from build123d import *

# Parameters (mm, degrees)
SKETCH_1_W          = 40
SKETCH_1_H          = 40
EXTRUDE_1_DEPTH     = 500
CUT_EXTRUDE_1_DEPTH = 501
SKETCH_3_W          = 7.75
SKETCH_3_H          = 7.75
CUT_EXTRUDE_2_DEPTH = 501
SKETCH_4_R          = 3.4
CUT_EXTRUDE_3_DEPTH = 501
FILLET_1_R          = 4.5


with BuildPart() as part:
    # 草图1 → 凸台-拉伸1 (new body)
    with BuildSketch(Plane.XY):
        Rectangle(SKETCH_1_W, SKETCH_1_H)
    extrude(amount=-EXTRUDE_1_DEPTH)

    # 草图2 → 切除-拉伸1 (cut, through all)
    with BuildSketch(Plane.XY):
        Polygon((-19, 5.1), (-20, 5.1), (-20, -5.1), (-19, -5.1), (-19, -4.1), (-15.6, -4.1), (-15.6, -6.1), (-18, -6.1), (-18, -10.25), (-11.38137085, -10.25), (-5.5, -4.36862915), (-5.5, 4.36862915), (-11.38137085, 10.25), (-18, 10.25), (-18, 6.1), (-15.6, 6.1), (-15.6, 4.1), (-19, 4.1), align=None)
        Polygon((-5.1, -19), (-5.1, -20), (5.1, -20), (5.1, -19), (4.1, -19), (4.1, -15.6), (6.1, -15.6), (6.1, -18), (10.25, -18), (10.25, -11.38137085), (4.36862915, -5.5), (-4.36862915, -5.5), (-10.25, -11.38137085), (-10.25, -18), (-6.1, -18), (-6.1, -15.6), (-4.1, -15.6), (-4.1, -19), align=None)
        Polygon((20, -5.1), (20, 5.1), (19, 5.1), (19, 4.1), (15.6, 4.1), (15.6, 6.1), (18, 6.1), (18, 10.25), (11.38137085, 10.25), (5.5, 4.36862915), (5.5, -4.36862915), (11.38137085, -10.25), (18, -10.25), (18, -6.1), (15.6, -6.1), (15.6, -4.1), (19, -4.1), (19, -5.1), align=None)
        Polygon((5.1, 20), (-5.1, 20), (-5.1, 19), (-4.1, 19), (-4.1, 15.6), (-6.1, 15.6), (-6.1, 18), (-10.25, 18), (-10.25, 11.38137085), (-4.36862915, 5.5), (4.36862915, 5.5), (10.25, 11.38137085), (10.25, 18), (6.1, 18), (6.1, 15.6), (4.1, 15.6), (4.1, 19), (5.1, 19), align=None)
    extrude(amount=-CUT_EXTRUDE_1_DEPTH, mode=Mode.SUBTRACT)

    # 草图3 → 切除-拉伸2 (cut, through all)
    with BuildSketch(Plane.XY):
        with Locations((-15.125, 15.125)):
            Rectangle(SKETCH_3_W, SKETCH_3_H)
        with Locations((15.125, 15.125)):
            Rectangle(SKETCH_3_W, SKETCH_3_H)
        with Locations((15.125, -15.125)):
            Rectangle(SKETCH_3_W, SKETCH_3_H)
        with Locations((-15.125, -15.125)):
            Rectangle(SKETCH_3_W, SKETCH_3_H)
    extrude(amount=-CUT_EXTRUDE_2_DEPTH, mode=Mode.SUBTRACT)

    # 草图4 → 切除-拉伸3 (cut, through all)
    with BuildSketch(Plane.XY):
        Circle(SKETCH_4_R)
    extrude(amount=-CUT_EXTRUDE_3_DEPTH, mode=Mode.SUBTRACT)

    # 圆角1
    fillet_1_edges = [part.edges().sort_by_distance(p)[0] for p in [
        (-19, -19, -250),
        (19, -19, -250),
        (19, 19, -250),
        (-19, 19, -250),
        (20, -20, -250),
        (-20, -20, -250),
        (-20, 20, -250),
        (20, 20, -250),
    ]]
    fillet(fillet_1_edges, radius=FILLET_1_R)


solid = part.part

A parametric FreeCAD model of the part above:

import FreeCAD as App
import Part
import Sketcher
Q = App.Units.Quantity


def edges_at(feature, points):
    """Names of the edges that pass closest to the given points."""
    edges = feature.Shape.Edges
    near = lambda p: min(range(len(edges)), key=lambda i: edges[i].distToShape(Part.Vertex(*p))[0])
    return sorted({f"Edge{near(p) + 1}" for p in points})


def add_polygon(sketch, points):
    """Adds a closed chain of lines whose ends are joined by coincident constraints."""
    first, n = sketch.GeometryCount, len(points)
    for a, b in zip(points, points[1:] + points[:1]):
        sketch.addGeometry(Part.LineSegment(App.Vector(*a, 0), App.Vector(*b, 0)), False)
    for i in range(n):
        sketch.addConstraint(Sketcher.Constraint("Coincident", first + i, 2, first + (i + 1) % n, 1))

doc = App.newDocument("Part")
body = doc.addObject("PartDesign::Body", "Body")

sketch1 = doc.addObject("Sketcher::SketchObject", "Sketch")
body.addObject(sketch1)
sketch1.AttachmentSupport = (doc.XY_Plane, [""])
sketch1.MapMode = "FlatFace"
add_polygon(sketch1, [(-20, 20), (-20, -20), (20, -20), (20, 20)])
sketch1.addConstraint([
    Sketcher.Constraint("Vertical", 0),
    Sketcher.Constraint("Horizontal", 1),
    Sketcher.Constraint("Vertical", 2),
    Sketcher.Constraint("Horizontal", 3),
    Sketcher.Constraint("Symmetric", 0, 2, 2, 2, -1, 1),
    Sketcher.Constraint("Equal", 3, 0),
    Sketcher.Constraint("DistanceX", 1, 1, 1, 2, Q("40 mm")),
])
pad1 = doc.addObject("PartDesign::Pad", "Pad")
body.addObject(pad1)
pad1.Profile = sketch1
pad1.Length = 500
pad1.Reversed = True

sketch2 = doc.addObject("Sketcher::SketchObject", "Sketch001")
body.addObject(sketch2)
sketch2.AttachmentSupport = (doc.XY_Plane, [""])
sketch2.MapMode = "FlatFace"
add_polygon(sketch2, [(-19, 5.1), (-20, 5.1), (-20, -5.1), (-19, -5.1), (-19, -4.1), (-15.6, -4.1), (-15.6, -6.1), (-18, -6.1), (-18, -10.2), (-11.4, -10.2), (-5.5, -4.4), (-5.5, 4.4), (-11.4, 10.2), (-18, 10.2), (-18, 6.1), (-15.6, 6.1), (-15.6, 4.1), (-19, 4.1)])
add_polygon(sketch2, [(-5.1, -19), (-5.1, -20), (5.1, -20), (5.1, -19), (4.1, -19), (4.1, -15.6), (6.1, -15.6), (6.1, -18), (10.2, -18), (10.2, -11.4), (4.4, -5.5), (-4.4, -5.5), (-10.2, -11.4), (-10.2, -18), (-6.1, -18), (-6.1, -15.6), (-4.1, -15.6), (-4.1, -19)])
add_polygon(sketch2, [(20, -5.1), (20, 5.1), (19, 5.1), (19, 4.1), (15.6, 4.1), (15.6, 6.1), (18, 6.1), (18, 10.2), (11.4, 10.2), (5.5, 4.4), (5.5, -4.4), (11.4, -10.2), (18, -10.2), (18, -6.1), (15.6, -6.1), (15.6, -4.1), (19, -4.1), (19, -5.1)])
add_polygon(sketch2, [(5.1, 20), (-5.1, 20), (-5.1, 19), (-4.1, 19), (-4.1, 15.6), (-6.1, 15.6), (-6.1, 18), (-10.2, 18), (-10.2, 11.4), (-4.4, 5.5), (4.4, 5.5), (10.2, 11.4), (10.2, 18), (6.1, 18), (6.1, 15.6), (4.1, 15.6), (4.1, 19), (5.1, 19)])
sketch2.addConstraint([
    Sketcher.Constraint("Horizontal", 0),
    Sketcher.Constraint("Vertical", 1),
    Sketcher.Constraint("Horizontal", 2),
    Sketcher.Constraint("Vertical", 3),
    Sketcher.Constraint("Horizontal", 4),
    Sketcher.Constraint("Vertical", 5),
    Sketcher.Constraint("Horizontal", 6),
    Sketcher.Constraint("Vertical", 7),
    Sketcher.Constraint("Horizontal", 8),
    Sketcher.Constraint("Vertical", 10),
    Sketcher.Constraint("Horizontal", 12),
    Sketcher.Constraint("Vertical", 13),
    Sketcher.Constraint("Horizontal", 14),
    Sketcher.Constraint("Vertical", 15),
    Sketcher.Constraint("Horizontal", 16),
    Sketcher.Constraint("Vertical", 17),
    Sketcher.Constraint("Vertical", 18),
    Sketcher.Constraint("Horizontal", 19),
    Sketcher.Constraint("Vertical", 20),
    Sketcher.Constraint("Horizontal", 21),
    Sketcher.Constraint("Vertical", 22),
    Sketcher.Constraint("Horizontal", 23),
    Sketcher.Constraint("Vertical", 24),
    Sketcher.Constraint("Horizontal", 25),
    Sketcher.Constraint("Vertical", 26),
    Sketcher.Constraint("Horizontal", 28),
    Sketcher.Constraint("Vertical", 30),
    Sketcher.Constraint("Horizontal", 31),
    Sketcher.Constraint("Vertical", 32),
    Sketcher.Constraint("Horizontal", 33),
    Sketcher.Constraint("Vertical", 34),
    Sketcher.Constraint("Horizontal", 35),
    Sketcher.Constraint("Vertical", 36),
    Sketcher.Constraint("Horizontal", 37),
    Sketcher.Constraint("Vertical", 38),
    Sketcher.Constraint("Horizontal", 39),
    Sketcher.Constraint("Vertical", 40),
    Sketcher.Constraint("Horizontal", 41),
    Sketcher.Constraint("Vertical", 42),
    Sketcher.Constraint("Horizontal", 43),
    Sketcher.Constraint("Vertical", 45),
    Sketcher.Constraint("Horizontal", 47),
    Sketcher.Constraint("Vertical", 48),
    Sketcher.Constraint("Horizontal", 49),
    Sketcher.Constraint("Vertical", 50),
    Sketcher.Constraint("Horizontal", 51),
    Sketcher.Constraint("Vertical", 52),
    Sketcher.Constraint("Horizontal", 53),
    Sketcher.Constraint("Horizontal", 54),
    Sketcher.Constraint("Vertical", 55),
    Sketcher.Constraint("Horizontal", 56),
    Sketcher.Constraint("Vertical", 57),
    Sketcher.Constraint("Horizontal", 58),
    Sketcher.Constraint("Vertical", 59),
    Sketcher.Constraint("Horizontal", 60),
    Sketcher.Constraint("Vertical", 61),
    Sketcher.Constraint("Horizontal", 63),
    Sketcher.Constraint("Vertical", 65),
    Sketcher.Constraint("Horizontal", 66),
    Sketcher.Constraint("Vertical", 67),
    Sketcher.Constraint("Horizontal", 68),
    Sketcher.Constraint("Vertical", 69),
    Sketcher.Constraint("Horizontal", 70),
    Sketcher.Constraint("Vertical", 71),
    Sketcher.Constraint("Symmetric", 1, 2, 36, 2, -1, 1),
    Sketcher.Constraint("Symmetric", 3, 2, 38, 2, -1, 1),
    Sketcher.Constraint("Symmetric", 5, 2, 40, 2, -1, 1),
    Sketcher.Constraint("Symmetric", 7, 2, 42, 2, -1, 1),
    Sketcher.Constraint("Symmetric", 9, 2, 44, 2, -1, 1),
    Sketcher.Constraint("Symmetric", 11, 2, 46, 2, -1, 1),
    Sketcher.Constraint("Symmetric", 13, 2, 48, 2, -1, 1),
    Sketcher.Constraint("Symmetric", 15, 2, 50, 2, -1, 1),
    Sketcher.Constraint("Symmetric", 17, 2, 52, 2, -1, 1),
    Sketcher.Constraint("Symmetric", 19, 2, 54, 2, -1, 1),
    Sketcher.Constraint("Symmetric", 21, 2, 56, 2, -1, 1),
    Sketcher.Constraint("Symmetric", 23, 2, 58, 2, -1, 1),
    Sketcher.Constraint("Symmetric", 25, 2, 60, 2, -1, 1),
    Sketcher.Constraint("Symmetric", 27, 2, 62, 2, -1, 1),
    Sketcher.Constraint("Symmetric", 29, 2, 64, 2, -1, 1),
    Sketcher.Constraint("Symmetric", 31, 2, 66, 2, -1, 1),
    Sketcher.Constraint("Symmetric", 33, 2, 68, 2, -1, 1),
    Sketcher.Constraint("Symmetric", 35, 2, 70, 2, -1, 1),
    Sketcher.Constraint("Symmetric", 26, 2, 29, 2, -2),
    Sketcher.Constraint("Symmetric", 24, 2, 31, 2, -2),
    Sketcher.Constraint("Symmetric", 22, 2, 33, 2, -2),
    Sketcher.Constraint("Symmetric", 20, 2, 35, 2, -2),
    Sketcher.Constraint("Symmetric", 17, 2, 37, 2, -2),
    Sketcher.Constraint("Symmetric", 15, 2, 39, 2, -2),
    Sketcher.Constraint("Symmetric", 13, 2, 41, 2, -2),
    Sketcher.Constraint("Symmetric", 11, 2, 43, 2, -2),
    Sketcher.Constraint("Perpendicular", 9, 11),
    Sketcher.Constraint("Parallel", 11, 27),
    Sketcher.Constraint("Perpendicular", 27, 29),
    Sketcher.Constraint("Parallel", 29, 44),
    Sketcher.Constraint("Perpendicular", 44, 46),
    Sketcher.Constraint("Parallel", 46, 62),
    Sketcher.Constraint("Perpendicular", 62, 64),
    Sketcher.Constraint("Horizontal", 10, 2, 44, 2),
    Sketcher.Constraint("Equal", 2, 21),
    Sketcher.Constraint("Equal", 54, 1),
    Sketcher.Constraint("Equal", 70, 3),
    Sketcher.Constraint("Equal", 68, 5),
    Sketcher.Constraint("Equal", 66, 7),
    Sketcher.Constraint("Equal", 63, 10),
    Sketcher.Constraint("Equal", 17, 18),
    Sketcher.Constraint("Equal", 51, 22),
    Sketcher.Constraint("Equal", 49, 24),
    Sketcher.Constraint("Equal", 47, 26),
    Sketcher.Constraint("DistanceX", 0, 2, 0, 1, Q("1 mm")),
    Sketcher.Constraint("DistanceX", 23, 1, 23, 2, Q("2 mm")),
    Sketcher.Constraint("DistanceX", 4, 1, 4, 2, Q("3.4 mm")),
    Sketcher.Constraint("DistanceX", 6, 2, 6, 1, Q("2.4 mm")),
    Sketcher.Constraint("DistanceX", 19, 1, 19, 2, Q("10.2 mm")),
    Sketcher.Constraint("DistanceX", 0, 2, -1, 1, Q("20 mm")),
    Sketcher.Constraint("DistanceY", 18, 2, -1, 1, Q("20 mm")),
    Sketcher.Constraint("DistanceX", 25, 1, 25, 2, Q("4.15 mm")),
    Sketcher.Constraint("DistanceX", 9, 2, -1, 1, Q("5.5 mm")),
    Sketcher.Constraint("DistanceX", 8, 1, 8, 2, Q("6.618629 mm")),
])
pocket1 = doc.addObject("PartDesign::Pocket", "Pocket")
body.addObject(pocket1)
pocket1.Profile = sketch2
pocket1.Type = "ThroughAll"

sketch3 = doc.addObject("Sketcher::SketchObject", "Sketch002")
body.addObject(sketch3)
sketch3.AttachmentSupport = (doc.XY_Plane, [""])
sketch3.MapMode = "FlatFace"
add_polygon(sketch3, [(-19, 19), (-19, 11), (-11, 11), (-11, 19)])
add_polygon(sketch3, [(11, 19), (11, 11), (19, 11), (19, 19)])
add_polygon(sketch3, [(11, -11), (11, -19), (19, -19), (19, -11)])
add_polygon(sketch3, [(-19, -11), (-19, -19), (-11, -19), (-11, -11)])
sketch3.addConstraint([
    Sketcher.Constraint("Vertical", 0),
    Sketcher.Constraint("Horizontal", 1),
    Sketcher.Constraint("Vertical", 2),
    Sketcher.Constraint("Horizontal", 3),
    Sketcher.Constraint("Vertical", 4),
    Sketcher.Constraint("Horizontal", 5),
    Sketcher.Constraint("Vertical", 6),
    Sketcher.Constraint("Horizontal", 7),
    Sketcher.Constraint("Vertical", 8),
    Sketcher.Constraint("Horizontal", 9),
    Sketcher.Constraint("Vertical", 10),
    Sketcher.Constraint("Horizontal", 11),
    Sketcher.Constraint("Vertical", 12),
    Sketcher.Constraint("Horizontal", 13),
    Sketcher.Constraint("Vertical", 14),
    Sketcher.Constraint("Horizontal", 15),
    Sketcher.Constraint("Symmetric", 2, 2, 8, 2, -1, 1),
    Sketcher.Constraint("Symmetric", 0, 2, 10, 2, -1, 1),
    Sketcher.Constraint("Symmetric", 6, 2, 12, 2, -1, 1),
    Sketcher.Constraint("Symmetric", 4, 2, 14, 2, -1, 1),
    Sketcher.Constraint("Symmetric", 1, 2, 4, 2, -2),
    Sketcher.Constraint("Symmetric", 3, 2, 6, 2, -2),
    Sketcher.Constraint("Equal", 15, 0),
    Sketcher.Constraint("DistanceX", 0, 2, -1, 1, Q("19 mm")),
    Sketcher.Constraint("DistanceY", -1, 1, 2, 2, Q("19 mm")),
    Sketcher.Constraint("DistanceX", 1, 1, 1, 2, Q("7.75 mm")),
])
pocket2 = doc.addObject("PartDesign::Pocket", "Pocket001")
body.addObject(pocket2)
pocket2.Profile = sketch3
pocket2.Type = "ThroughAll"

sketch4 = doc.addObject("Sketcher::SketchObject", "Sketch003")
body.addObject(sketch4)
sketch4.AttachmentSupport = (doc.XY_Plane, [""])
sketch4.MapMode = "FlatFace"
sketch4.addGeometry(Part.Circle(App.Vector(0, 0, 0), App.Vector(0, 0, 1), 3.4), False)
sketch4.addConstraint([
    Sketcher.Constraint("Coincident", 0, 3, -1, 1),
    Sketcher.Constraint("Diameter", 0, Q("6.8 mm")),
])
pocket3 = doc.addObject("PartDesign::Pocket", "Pocket002")
body.addObject(pocket3)
pocket3.Profile = sketch4
pocket3.Type = "ThroughAll"
doc.recompute()

fillet = doc.addObject("PartDesign::Fillet", "Fillet")
body.addObject(fillet)
fillet.Base = (pocket3, edges_at(pocket3, [
    (-19, -19, -250),
    (19, -19, -250),
    (19, 19, -250),
    (-19, 19, -250),
    (20, -20, -250),
    (-20, -20, -250),
    (-20, 20, -250),
    (20, 20, -250),
]))
fillet.Radius = 4.5

doc.recompute()
